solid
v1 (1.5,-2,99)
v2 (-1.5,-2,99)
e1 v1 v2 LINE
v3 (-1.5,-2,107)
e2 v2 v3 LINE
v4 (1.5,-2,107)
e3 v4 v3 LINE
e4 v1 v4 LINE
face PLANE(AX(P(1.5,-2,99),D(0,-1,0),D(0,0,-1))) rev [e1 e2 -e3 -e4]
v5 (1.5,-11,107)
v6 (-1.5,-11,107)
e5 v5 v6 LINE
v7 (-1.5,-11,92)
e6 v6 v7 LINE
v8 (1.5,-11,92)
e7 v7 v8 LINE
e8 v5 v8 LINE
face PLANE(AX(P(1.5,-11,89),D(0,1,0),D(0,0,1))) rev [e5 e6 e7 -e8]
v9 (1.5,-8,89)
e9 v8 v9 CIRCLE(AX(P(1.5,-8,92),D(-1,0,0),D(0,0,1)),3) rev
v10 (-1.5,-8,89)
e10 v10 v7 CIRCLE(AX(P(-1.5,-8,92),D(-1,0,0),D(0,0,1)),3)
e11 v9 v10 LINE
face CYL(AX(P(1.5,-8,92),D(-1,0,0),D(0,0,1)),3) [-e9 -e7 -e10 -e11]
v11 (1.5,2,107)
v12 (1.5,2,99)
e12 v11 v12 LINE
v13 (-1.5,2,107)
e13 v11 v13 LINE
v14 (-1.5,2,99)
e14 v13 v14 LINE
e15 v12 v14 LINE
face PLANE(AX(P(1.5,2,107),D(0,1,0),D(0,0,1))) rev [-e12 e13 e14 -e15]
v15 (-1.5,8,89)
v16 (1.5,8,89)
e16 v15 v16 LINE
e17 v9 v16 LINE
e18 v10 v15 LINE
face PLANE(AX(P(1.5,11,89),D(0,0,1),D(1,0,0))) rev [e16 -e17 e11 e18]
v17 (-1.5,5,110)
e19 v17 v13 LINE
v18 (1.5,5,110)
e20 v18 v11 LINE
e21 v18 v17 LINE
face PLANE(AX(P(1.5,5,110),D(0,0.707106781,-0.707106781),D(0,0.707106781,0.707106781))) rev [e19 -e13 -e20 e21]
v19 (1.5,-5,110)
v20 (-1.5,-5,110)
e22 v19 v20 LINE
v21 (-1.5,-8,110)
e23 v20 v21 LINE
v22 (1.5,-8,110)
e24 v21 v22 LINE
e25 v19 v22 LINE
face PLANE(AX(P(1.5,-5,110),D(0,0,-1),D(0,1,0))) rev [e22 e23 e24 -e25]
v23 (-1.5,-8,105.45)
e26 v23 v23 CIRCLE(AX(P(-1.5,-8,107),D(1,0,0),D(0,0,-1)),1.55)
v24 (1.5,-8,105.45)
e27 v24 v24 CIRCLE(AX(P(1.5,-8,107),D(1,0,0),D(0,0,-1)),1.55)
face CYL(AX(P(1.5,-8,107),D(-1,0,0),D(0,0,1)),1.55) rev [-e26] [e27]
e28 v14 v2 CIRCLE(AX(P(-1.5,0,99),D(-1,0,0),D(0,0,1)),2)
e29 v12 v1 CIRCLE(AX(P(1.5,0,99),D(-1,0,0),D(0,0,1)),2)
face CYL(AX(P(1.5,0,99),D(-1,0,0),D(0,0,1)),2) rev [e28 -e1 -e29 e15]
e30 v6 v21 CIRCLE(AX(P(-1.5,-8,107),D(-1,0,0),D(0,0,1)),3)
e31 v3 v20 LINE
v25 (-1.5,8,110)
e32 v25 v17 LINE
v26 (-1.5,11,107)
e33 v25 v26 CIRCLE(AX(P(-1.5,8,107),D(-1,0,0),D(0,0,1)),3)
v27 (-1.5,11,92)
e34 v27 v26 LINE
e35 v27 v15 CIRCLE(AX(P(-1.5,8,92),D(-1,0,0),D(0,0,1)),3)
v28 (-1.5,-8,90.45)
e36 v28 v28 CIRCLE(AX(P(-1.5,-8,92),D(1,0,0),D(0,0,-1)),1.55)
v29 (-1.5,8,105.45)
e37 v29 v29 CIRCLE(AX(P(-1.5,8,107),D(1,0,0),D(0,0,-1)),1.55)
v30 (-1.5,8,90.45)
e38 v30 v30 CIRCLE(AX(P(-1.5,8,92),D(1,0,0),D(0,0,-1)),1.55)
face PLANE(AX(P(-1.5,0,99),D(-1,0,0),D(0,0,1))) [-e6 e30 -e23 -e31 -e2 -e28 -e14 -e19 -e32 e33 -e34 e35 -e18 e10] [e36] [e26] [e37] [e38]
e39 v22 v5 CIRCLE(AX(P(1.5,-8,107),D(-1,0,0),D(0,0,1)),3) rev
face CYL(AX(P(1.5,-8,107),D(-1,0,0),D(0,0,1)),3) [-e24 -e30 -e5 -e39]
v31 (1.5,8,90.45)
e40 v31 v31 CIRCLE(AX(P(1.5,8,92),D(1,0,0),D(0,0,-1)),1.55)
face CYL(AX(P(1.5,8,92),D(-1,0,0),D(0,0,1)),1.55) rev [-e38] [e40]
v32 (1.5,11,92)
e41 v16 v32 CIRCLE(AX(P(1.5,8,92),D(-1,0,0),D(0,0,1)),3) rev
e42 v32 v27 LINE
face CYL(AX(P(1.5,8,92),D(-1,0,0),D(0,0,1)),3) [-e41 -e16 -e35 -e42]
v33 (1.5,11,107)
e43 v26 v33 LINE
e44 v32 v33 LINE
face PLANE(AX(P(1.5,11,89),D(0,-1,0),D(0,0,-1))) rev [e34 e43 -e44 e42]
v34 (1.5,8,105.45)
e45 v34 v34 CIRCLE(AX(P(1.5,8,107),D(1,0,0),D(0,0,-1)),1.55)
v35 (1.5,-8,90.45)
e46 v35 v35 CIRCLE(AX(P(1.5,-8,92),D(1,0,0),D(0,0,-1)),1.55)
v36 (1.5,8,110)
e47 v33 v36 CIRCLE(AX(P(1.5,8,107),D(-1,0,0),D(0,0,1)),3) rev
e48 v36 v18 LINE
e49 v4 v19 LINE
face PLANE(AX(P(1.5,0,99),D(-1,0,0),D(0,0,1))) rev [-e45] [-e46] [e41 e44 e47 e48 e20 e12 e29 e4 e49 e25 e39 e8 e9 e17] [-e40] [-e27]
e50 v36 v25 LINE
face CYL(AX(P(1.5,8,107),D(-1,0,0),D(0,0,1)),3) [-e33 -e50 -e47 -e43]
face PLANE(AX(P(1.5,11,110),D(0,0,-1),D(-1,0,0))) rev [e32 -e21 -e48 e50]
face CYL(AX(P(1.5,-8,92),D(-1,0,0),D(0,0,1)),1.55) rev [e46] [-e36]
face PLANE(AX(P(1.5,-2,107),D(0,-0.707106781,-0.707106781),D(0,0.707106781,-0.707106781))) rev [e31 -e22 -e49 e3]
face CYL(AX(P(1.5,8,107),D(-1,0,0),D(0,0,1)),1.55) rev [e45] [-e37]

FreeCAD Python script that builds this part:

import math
import FreeCAD as App
import Part
import Sketcher
from FreeCAD import Vector


def edges_at(feature, points):
    """Names of the edges that pass closest to the given points."""
    edges = feature.Shape.Edges
    near = lambda p: min(range(len(edges)), key=lambda i: edges[i].distToShape(Part.Vertex(*p))[0])
    return sorted({f"Edge{near(p) + 1}" for p in points})

doc = App.newDocument("Part")
body = doc.addObject("PartDesign::Body", "Body")

# Sketch on YZ plane
sketch1 = body.newObject("Sketcher::SketchObject", "Sketch")
sketch1.AttachmentSupport = (doc.getObject("YZ_Plane"), [""])
sketch1.MapMode = "FlatFace"
sketch1.addGeometry(Part.LineSegment(Vector(-11, 89, 0), Vector(11, 89, 0)), False)
sketch1.addGeometry(Part.LineSegment(Vector(11, 89, 0), Vector(11, 110, 0)), False)
sketch1.addGeometry(Part.LineSegment(Vector(11, 110, 0), Vector(5, 110, 0)), False)
sketch1.addGeometry(Part.LineSegment(Vector(5, 110, 0), Vector(2, 107, 0)), False)
sketch1.addGeometry(Part.LineSegment(Vector(2, 107, 0), Vector(2, 99, 0)), False)
sketch1.addGeometry(Part.ArcOfCircle(Part.Circle(Vector(0, 99, 0), Vector(0, 0, 1), 2), math.radians(180), math.radians(360)), False)
sketch1.addGeometry(Part.LineSegment(Vector(-2, 99, 0), Vector(-2, 107, 0)), False)
sketch1.addGeometry(Part.LineSegment(Vector(-2, 107, 0), Vector(-5, 110, 0)), False)
sketch1.addGeometry(Part.LineSegment(Vector(-5, 110, 0), Vector(-11, 110, 0)), False)
sketch1.addGeometry(Part.LineSegment(Vector(-11, 110, 0), Vector(-11, 89, 0)), False)
sketch1.addGeometry(Part.Circle(Vector(-8, 92, 0), Vector(0, 0, 1), 1.6), False)
sketch1.addGeometry(Part.Circle(Vector(-8, 107, 0), Vector(0, 0, 1), 1.6), False)
sketch1.addGeometry(Part.Circle(Vector(8, 92, 0), Vector(0, 0, 1), 1.6), False)
sketch1.addGeometry(Part.Circle(Vector(8, 107, 0), Vector(0, 0, 1), 1.6), False)
sketch1.addConstraint(Sketcher.Constraint("Coincident", 0, 2, 1, 1))
sketch1.addConstraint(Sketcher.Constraint("Coincident", 1, 2, 2, 1))
sketch1.addConstraint(Sketcher.Constraint("Coincident", 2, 2, 3, 1))
sketch1.addConstraint(Sketcher.Constraint("Coincident", 3, 2, 4, 1))
sketch1.addConstraint(Sketcher.Constraint("Tangent", 4, 2, 5, 2))
sketch1.addConstraint(Sketcher.Constraint("Tangent", 5, 1, 6, 1))
sketch1.addConstraint(Sketcher.Constraint("Coincident", 6, 2, 7, 1))
sketch1.addConstraint(Sketcher.Constraint("Coincident", 7, 2, 8, 1))
sketch1.addConstraint(Sketcher.Constraint("Coincident", 8, 2, 9, 1))
sketch1.addConstraint(Sketcher.Constraint("Coincident", 9, 2, 0, 1))
sketch1.addConstraint(Sketcher.Constraint("Horizontal", 0))
sketch1.addConstraint(Sketcher.Constraint("Vertical", 1))
sketch1.addConstraint(Sketcher.Constraint("Horizontal", 2))
sketch1.addConstraint(Sketcher.Constraint("Vertical", 4))
sketch1.addConstraint(Sketcher.Constraint("Vertical", 6))
sketch1.addConstraint(Sketcher.Constraint("Horizontal", 8))
sketch1.addConstraint(Sketcher.Constraint("Vertical", 9))
sketch1.addConstraint(Sketcher.Constraint("Equal", 10, 11))
sketch1.addConstraint(Sketcher.Constraint("Equal", 11, 12))
sketch1.addConstraint(Sketcher.Constraint("Equal", 12, 13))
sketch1.addConstraint(Sketcher.Constraint("Symmetric", 10, 3, 12, 3, -2))
sketch1.addConstraint(Sketcher.Constraint("Symmetric", 11, 3, 13, 3, -2))
sketch1.addConstraint(Sketcher.Constraint("Symmetric", 3, 2, 6, 2, -2))
sketch1.addConstraint(Sketcher.Constraint("Symmetric", 2, 2, 7, 2, -2))
sketch1.addConstraint(Sketcher.Constraint("Perpendicular", 3, 7))
sketch1.addConstraint(Sketcher.Constraint("Horizontal", 13, 3, 3, 2))
sketch1.addConstraint(Sketcher.Constraint("Vertical", 10, 3, 11, 3))
sketch1.addConstraint(Sketcher.Constraint("Equal", 2, 8))
sketch1.addConstraint(Sketcher.Constraint("Radius", 5, 2.0))
sketch1.addConstraint(Sketcher.Constraint("Diameter", 10, 3.1))
sketch1.addConstraint(Sketcher.Constraint("DistanceX", 0, 1, 0, 2, 22.0))
sketch1.addConstraint(Sketcher.Constraint("DistanceX", 2, 2, 2, 1, 6.0))
sketch1.addConstraint(Sketcher.Constraint("DistanceY", 1, 1, 1, 2, 21.0))
sketch1.addConstraint(Sketcher.Constraint("DistanceY", 4, 2, 4, 1, 8.0))
sketch1.addConstraint(Sketcher.Constraint("DistanceY", -1, 1, 5, 3, 99.0))
sketch1.addConstraint(Sketcher.Constraint("DistanceX", 10, 3, -1, 1, 8.0))
sketch1.addConstraint(Sketcher.Constraint("DistanceY", -1, 1, 10, 3, 92.0))
pad1 = body.newObject("PartDesign::Pad", "Pad")
pad1.Profile = sketch1
pad1.Length = 3
pad1.Midplane = True
doc.recompute()

fillet = body.newObject("PartDesign::Fillet", "Fillet")
fillet.Base = (pad1, edges_at(pad1, [
    (0, 11, 110),
    (0, 11, 89),
    (0, -11, 89),
    (0, -11, 110),
]))
fillet.Radius = 3

doc.recompute()
